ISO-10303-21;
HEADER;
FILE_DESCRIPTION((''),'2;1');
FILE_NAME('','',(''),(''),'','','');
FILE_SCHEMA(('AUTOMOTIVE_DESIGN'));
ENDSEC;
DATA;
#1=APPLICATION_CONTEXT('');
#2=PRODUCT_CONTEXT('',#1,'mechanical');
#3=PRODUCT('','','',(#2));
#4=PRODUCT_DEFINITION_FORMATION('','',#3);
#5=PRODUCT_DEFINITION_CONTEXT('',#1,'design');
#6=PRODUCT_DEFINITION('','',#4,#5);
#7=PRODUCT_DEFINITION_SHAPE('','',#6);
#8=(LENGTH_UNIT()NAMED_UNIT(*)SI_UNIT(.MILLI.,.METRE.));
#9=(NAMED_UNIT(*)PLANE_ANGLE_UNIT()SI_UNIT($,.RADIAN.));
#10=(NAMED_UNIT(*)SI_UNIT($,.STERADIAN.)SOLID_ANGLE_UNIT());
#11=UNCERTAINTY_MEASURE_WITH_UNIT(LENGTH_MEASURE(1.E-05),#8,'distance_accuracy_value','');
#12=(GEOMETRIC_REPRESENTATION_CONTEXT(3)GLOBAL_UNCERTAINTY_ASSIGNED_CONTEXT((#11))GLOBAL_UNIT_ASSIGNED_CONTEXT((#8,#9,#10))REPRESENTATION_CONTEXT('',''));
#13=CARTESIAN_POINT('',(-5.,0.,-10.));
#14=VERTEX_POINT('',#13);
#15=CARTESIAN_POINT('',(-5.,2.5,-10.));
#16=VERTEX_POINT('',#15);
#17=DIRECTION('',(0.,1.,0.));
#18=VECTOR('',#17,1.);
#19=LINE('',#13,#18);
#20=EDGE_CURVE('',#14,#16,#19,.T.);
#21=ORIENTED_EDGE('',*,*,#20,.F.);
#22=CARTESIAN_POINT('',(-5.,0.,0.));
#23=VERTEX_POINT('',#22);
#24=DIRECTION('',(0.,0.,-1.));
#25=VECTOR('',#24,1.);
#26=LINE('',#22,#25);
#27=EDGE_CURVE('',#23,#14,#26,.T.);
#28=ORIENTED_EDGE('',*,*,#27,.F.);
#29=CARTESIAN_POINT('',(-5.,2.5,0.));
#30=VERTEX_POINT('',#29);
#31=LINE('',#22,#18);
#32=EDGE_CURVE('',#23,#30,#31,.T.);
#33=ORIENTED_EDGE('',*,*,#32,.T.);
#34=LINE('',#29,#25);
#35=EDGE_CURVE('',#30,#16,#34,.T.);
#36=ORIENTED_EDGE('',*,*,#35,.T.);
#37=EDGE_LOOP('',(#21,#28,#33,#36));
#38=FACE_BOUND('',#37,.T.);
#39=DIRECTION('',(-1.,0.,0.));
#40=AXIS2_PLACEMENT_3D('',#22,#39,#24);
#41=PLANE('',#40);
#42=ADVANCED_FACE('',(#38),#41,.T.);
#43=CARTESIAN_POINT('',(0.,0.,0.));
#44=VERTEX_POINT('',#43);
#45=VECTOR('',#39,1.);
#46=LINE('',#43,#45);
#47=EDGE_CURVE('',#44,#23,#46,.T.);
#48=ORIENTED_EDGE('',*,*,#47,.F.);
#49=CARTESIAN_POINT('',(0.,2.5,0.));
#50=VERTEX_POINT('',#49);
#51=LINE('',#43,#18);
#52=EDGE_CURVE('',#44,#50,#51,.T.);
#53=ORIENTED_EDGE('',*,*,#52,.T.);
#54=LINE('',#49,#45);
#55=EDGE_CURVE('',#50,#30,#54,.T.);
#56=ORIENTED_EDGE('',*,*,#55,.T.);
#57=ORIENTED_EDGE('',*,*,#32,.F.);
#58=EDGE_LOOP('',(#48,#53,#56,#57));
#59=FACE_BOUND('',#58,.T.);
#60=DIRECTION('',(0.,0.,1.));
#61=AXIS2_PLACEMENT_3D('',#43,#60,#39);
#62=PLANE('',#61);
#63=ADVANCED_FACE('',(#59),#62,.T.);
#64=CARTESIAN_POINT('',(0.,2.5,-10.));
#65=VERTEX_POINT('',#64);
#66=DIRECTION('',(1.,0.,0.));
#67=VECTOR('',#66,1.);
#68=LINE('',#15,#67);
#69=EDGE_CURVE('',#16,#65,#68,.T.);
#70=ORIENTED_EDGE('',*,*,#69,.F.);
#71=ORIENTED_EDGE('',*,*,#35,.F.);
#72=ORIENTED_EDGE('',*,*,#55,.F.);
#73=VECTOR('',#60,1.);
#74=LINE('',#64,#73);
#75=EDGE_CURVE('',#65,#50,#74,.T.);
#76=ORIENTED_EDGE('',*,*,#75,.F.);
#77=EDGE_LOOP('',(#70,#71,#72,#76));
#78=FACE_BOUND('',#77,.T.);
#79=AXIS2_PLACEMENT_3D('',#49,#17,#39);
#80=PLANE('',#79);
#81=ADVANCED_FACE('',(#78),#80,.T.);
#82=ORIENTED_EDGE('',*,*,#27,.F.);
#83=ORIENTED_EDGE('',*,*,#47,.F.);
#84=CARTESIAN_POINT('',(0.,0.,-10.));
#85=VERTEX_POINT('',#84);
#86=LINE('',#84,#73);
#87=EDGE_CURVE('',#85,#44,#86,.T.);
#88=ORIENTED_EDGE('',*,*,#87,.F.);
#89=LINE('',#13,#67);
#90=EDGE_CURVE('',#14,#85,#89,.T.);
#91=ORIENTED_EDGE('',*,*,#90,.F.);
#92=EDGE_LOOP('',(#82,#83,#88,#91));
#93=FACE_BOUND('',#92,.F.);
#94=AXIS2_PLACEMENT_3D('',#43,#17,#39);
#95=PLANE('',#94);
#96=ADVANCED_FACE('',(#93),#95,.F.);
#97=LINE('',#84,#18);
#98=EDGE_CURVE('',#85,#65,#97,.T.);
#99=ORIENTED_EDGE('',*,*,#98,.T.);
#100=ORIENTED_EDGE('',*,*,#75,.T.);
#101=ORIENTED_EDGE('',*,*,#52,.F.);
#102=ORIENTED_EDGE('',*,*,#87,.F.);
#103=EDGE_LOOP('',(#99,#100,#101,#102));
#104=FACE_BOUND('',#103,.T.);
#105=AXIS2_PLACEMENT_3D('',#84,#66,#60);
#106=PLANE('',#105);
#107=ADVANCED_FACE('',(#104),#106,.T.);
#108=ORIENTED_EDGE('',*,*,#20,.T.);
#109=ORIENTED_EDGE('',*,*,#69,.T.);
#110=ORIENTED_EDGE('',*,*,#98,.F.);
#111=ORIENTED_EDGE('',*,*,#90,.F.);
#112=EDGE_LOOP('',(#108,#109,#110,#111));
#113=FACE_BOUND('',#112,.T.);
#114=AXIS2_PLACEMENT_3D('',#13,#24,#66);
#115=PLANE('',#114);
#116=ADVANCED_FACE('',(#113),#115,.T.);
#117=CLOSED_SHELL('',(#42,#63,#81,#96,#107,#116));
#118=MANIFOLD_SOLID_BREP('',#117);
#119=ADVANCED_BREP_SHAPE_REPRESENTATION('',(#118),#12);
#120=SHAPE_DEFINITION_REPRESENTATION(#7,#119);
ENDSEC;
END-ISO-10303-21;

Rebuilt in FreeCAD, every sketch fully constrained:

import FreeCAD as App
import Part
import Sketcher


def add_polygon(sketch, points):
    """Adds a closed chain of lines whose ends are joined by coincident constraints."""
    first, n = sketch.GeometryCount, len(points)
    for a, b in zip(points, points[1:] + points[:1]):
        sketch.addGeometry(Part.LineSegment(App.Vector(*a, 0), App.Vector(*b, 0)), False)
    for i in range(n):
        sketch.addConstraint(Sketcher.Constraint("Coincident", first + i, 2, first + (i + 1) % n, 1))

doc = App.newDocument("Part")
body = doc.addObject("PartDesign::Body", "Body")

# Sketch on XZ plane
sketch1 = doc.addObject("Sketcher::SketchObject", "Sketch")
body.addObject(sketch1)
sketch1.AttachmentSupport = (doc.XZ_Plane, [""])
sketch1.MapMode = "FlatFace"
add_polygon(sketch1, [(-5, 0), (0, 0), (0, -10), (-5, -10)])  # lines 0-3
sketch1.addConstraint([
    Sketcher.Constraint("Horizontal", 0),
    Sketcher.Constraint("Vertical", 1),
    Sketcher.Constraint("Horizontal", 2),
    Sketcher.Constraint("Vertical", 3),
    Sketcher.Constraint("Coincident", 0, 2, -1, 1),
    Sketcher.Constraint("DistanceX", 0, 1, 0, 2, 5.0),
    Sketcher.Constraint("DistanceY", 1, 2, 1, 1, 10.0),
])
pad1 = doc.addObject("PartDesign::Pad", "Pad")
body.addObject(pad1)
pad1.Profile = sketch1
pad1.Length = 2.5
pad1.Reversed = True

doc.recompute()
